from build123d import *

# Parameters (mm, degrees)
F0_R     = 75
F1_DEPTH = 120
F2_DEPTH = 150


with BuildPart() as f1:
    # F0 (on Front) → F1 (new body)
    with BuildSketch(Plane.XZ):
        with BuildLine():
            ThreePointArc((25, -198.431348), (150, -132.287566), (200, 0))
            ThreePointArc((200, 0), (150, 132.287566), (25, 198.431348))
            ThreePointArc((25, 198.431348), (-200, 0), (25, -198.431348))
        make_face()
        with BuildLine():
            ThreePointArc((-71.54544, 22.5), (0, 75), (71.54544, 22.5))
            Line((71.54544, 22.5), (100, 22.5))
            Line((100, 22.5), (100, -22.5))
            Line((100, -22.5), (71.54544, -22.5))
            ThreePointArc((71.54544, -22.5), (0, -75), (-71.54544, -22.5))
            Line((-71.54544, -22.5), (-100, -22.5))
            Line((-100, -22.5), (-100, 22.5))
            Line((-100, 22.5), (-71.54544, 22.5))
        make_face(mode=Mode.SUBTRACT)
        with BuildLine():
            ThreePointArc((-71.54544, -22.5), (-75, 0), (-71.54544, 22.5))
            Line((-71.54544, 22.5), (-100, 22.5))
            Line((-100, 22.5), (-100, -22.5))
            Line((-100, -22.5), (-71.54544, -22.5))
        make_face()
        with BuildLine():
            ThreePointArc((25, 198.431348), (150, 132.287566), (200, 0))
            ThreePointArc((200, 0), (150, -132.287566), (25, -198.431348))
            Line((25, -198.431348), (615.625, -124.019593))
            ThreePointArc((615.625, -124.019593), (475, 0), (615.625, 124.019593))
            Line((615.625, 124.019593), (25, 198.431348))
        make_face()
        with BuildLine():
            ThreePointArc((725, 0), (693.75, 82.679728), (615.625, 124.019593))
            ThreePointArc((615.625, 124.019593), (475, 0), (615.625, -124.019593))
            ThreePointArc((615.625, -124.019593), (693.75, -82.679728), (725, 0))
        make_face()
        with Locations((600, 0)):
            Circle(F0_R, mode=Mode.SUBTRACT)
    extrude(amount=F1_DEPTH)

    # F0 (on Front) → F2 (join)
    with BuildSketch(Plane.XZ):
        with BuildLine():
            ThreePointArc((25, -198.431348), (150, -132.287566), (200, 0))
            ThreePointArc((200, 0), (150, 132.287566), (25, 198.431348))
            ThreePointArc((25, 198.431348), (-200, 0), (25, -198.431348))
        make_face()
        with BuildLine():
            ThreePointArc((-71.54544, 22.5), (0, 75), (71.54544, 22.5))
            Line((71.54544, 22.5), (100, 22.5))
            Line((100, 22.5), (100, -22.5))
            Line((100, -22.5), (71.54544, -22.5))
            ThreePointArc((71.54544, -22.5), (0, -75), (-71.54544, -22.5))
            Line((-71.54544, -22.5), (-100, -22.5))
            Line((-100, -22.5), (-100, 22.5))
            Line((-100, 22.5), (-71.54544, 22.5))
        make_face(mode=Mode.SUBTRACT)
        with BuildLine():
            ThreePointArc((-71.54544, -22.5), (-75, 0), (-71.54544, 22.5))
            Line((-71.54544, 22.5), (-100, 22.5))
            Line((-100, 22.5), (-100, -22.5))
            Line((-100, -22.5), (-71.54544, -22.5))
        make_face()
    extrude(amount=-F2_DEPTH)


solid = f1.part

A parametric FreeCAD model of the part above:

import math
import FreeCAD as App
import Part
import Sketcher
from FreeCAD import Vector
Q = App.Units.Quantity

doc = App.newDocument("Part")
body = doc.addObject("PartDesign::Body", "Body")

sketch1 = body.newObject("Sketcher::SketchObject", "Sketch")
sketch1.AttachmentSupport = (doc.getObject("XZ_Plane"), [""])
sketch1.MapMode = "FlatFace"
sketch1.addGeometry(Part.ArcOfCircle(Part.Circle(Vector(0, 0, 0), Vector(0, 0, 1), 200), math.radians(83), math.radians(277)), False)
sketch1.addGeometry(Part.LineSegment(Vector(25, -198, 0), Vector(616, -124, 0)), False)
sketch1.addGeometry(Part.ArcOfCircle(Part.Circle(Vector(600, 0, 0), Vector(0, 0, 1), 125), math.radians(-83), math.radians(0)), False)
sketch1.addGeometry(Part.ArcOfCircle(Part.Circle(Vector(600, 0, 0), Vector(0, 0, 1), 125), math.radians(0), math.radians(83)), False)
sketch1.addGeometry(Part.LineSegment(Vector(616, 124, 0), Vector(25, 198, 0)), False)
sketch1.addGeometry(Part.ArcOfCircle(Part.Circle(Vector(0, 0, 0), Vector(0, 0, 1), 75), math.radians(-163), math.radians(-17)), False)
sketch1.addGeometry(Part.ArcOfCircle(Part.Circle(Vector(0, 0, 0), Vector(0, 0, 1), 75), math.radians(163), math.radians(197)), False)
sketch1.addGeometry(Part.ArcOfCircle(Part.Circle(Vector(0, 0, 0), Vector(0, 0, 1), 75), math.radians(17), math.radians(163)), False)
sketch1.addGeometry(Part.LineSegment(Vector(72, 22, 0), Vector(100, 22, 0)), False)
sketch1.addGeometry(Part.LineSegment(Vector(100, 22, 0), Vector(100, -22, 0)), False)
sketch1.addGeometry(Part.LineSegment(Vector(100, -22, 0), Vector(72, -22, 0)), False)
sketch1.addGeometry(Part.Circle(Vector(600, 0, 0), Vector(0, 0, 1), 75), False)
sketch1.addConstraint(Sketcher.Constraint("Tangent", 0, 2, 1, 1))
sketch1.addConstraint(Sketcher.Constraint("Tangent", 1, 2, 2, 1))
sketch1.addConstraint(Sketcher.Constraint("Tangent", 2, 2, 3, 1))
sketch1.addConstraint(Sketcher.Constraint("Tangent", 3, 2, 4, 1))
sketch1.addConstraint(Sketcher.Constraint("Tangent", 4, 2, 0, 1))
sketch1.addConstraint(Sketcher.Constraint("Tangent", 5, 1, 6, 2))
sketch1.addConstraint(Sketcher.Constraint("Tangent", 6, 1, 7, 2))
sketch1.addConstraint(Sketcher.Constraint("Coincident", 7, 1, 8, 1))
sketch1.addConstraint(Sketcher.Constraint("Coincident", 8, 2, 9, 1))
sketch1.addConstraint(Sketcher.Constraint("Coincident", 9, 2, 10, 1))
sketch1.addConstraint(Sketcher.Constraint("Coincident", 10, 2, 5, 2))
sketch1.addConstraint(Sketcher.Constraint("Horizontal", 8))
sketch1.addConstraint(Sketcher.Constraint("Vertical", 9))
sketch1.addConstraint(Sketcher.Constraint("Horizontal", 10))
sketch1.addConstraint(Sketcher.Constraint("Coincident", 0, 3, -1, 1))
sketch1.addConstraint(Sketcher.Constraint("Coincident", 5, 3, -1, 1))
sketch1.addConstraint(Sketcher.Constraint("Coincident", 7, 3, -1, 1))
sketch1.addConstraint(Sketcher.Constraint("Coincident", 11, 3, 2, 3))
sketch1.addConstraint(Sketcher.Constraint("Equal", 2, 3))
sketch1.addConstraint(Sketcher.Constraint("Equal", 7, 11))
sketch1.addConstraint(Sketcher.Constraint("PointOnObject", 2, 3, -1))
sketch1.addConstraint(Sketcher.Constraint("PointOnObject", 2, 2, -1))
sketch1.addConstraint(Sketcher.Constraint("Horizontal", 6, 1, 7, 1))
sketch1.addConstraint(Sketcher.Constraint("Horizontal", 5, 1, 9, 2))
sketch1.addConstraint(Sketcher.Constraint("Vertical", 5, 1, 6, 1))
sketch1.addConstraint(Sketcher.Constraint("Diameter", 11, Q("150 mm")))
sketch1.addConstraint(Sketcher.Constraint("Radius", 0, Q("200 mm")))
sketch1.addConstraint(Sketcher.Constraint("Radius", 2, Q("125.000002 mm")))
sketch1.addConstraint(Sketcher.Constraint("DistanceY", 9, 2, 9, 1, Q("45 mm")))
sketch1.addConstraint(Sketcher.Constraint("DistanceX", -1, 1, 2, 3, Q("599.999998 mm")))
sketch1.addConstraint(Sketcher.Constraint("DistanceX", -1, 1, 8, 2, Q("100 mm")))
pad1 = body.newObject("PartDesign::Pad", "Pad")
pad1.Profile = sketch1
pad1.Length = 120

sketch2 = body.newObject("Sketcher::SketchObject", "Sketch001")
sketch2.AttachmentSupport = (doc.getObject("XZ_Plane"), [""])
sketch2.MapMode = "FlatFace"
sketch2.addGeometry(Part.ArcOfCircle(Part.Circle(Vector(0, 0, 0), Vector(0, 0, 1), 200), math.radians(-83), math.radians(0)), False)
sketch2.addGeometry(Part.ArcOfCircle(Part.Circle(Vector(0, 0, 0), Vector(0, 0, 1), 200), math.radians(0), math.radians(83)), False)
sketch2.addGeometry(Part.ArcOfCircle(Part.Circle(Vector(0, 0, 0), Vector(0, 0, 1), 200), math.radians(83), math.radians(277)), False)
sketch2.addGeometry(Part.ArcOfCircle(Part.Circle(Vector(0, 0, 0), Vector(0, 0, 1), 75), math.radians(-163), math.radians(-17)), False)
sketch2.addGeometry(Part.ArcOfCircle(Part.Circle(Vector(0, 0, 0), Vector(0, 0, 1), 75), math.radians(163), math.radians(197)), False)
sketch2.addGeometry(Part.ArcOfCircle(Part.Circle(Vector(0, 0, 0), Vector(0, 0, 1), 75), math.radians(17), math.radians(163)), False)
sketch2.addGeometry(Part.LineSegment(Vector(72, 22, 0), Vector(100, 22, 0)), False)
sketch2.addGeometry(Part.LineSegment(Vector(100, 22, 0), Vector(100, -22, 0)), False)
sketch2.addGeometry(Part.LineSegment(Vector(100, -22, 0), Vector(72, -22, 0)), False)
sketch2.addConstraint(Sketcher.Constraint("Tangent", 0, 2, 1, 1))
sketch2.addConstraint(Sketcher.Constraint("Tangent", 1, 2, 2, 1))
sketch2.addConstraint(Sketcher.Constraint("Tangent", 2, 2, 0, 1))
sketch2.addConstraint(Sketcher.Constraint("Tangent", 3, 1, 4, 2))
sketch2.addConstraint(Sketcher.Constraint("Tangent", 4, 1, 5, 2))
sketch2.addConstraint(Sketcher.Constraint("Coincident", 5, 1, 6, 1))
sketch2.addConstraint(Sketcher.Constraint("Coincident", 6, 2, 7, 1))
sketch2.addConstraint(Sketcher.Constraint("Coincident", 7, 2, 8, 1))
sketch2.addConstraint(Sketcher.Constraint("Coincident", 8, 2, 3, 2))
sketch2.addConstraint(Sketcher.Constraint("Horizontal", 6))
sketch2.addConstraint(Sketcher.Constraint("Vertical", 7))
sketch2.addConstraint(Sketcher.Constraint("Horizontal", 8))
sketch2.addConstraint(Sketcher.Constraint("Coincident", 0, 3, -1, 1))
sketch2.addConstraint(Sketcher.Constraint("Coincident", 3, 3, -1, 1))
sketch2.addConstraint(Sketcher.Constraint("Coincident", 5, 3, -1, 1))
sketch2.addConstraint(Sketcher.Constraint("PointOnObject", 0, 2, -1))
sketch2.addConstraint(Sketcher.Constraint("Horizontal", 4, 1, 5, 1))
sketch2.addConstraint(Sketcher.Constraint("Horizontal", 3, 1, 7, 2))
sketch2.addConstraint(Sketcher.Constraint("Vertical", 1, 2, 2, 2))
sketch2.addConstraint(Sketcher.Constraint("Vertical", 3, 1, 4, 1))
sketch2.addConstraint(Sketcher.Constraint("Radius", 0, Q("199.999998 mm")))
sketch2.addConstraint(Sketcher.Constraint("Radius", 3, Q("75 mm")))
sketch2.addConstraint(Sketcher.Constraint("DistanceY", 7, 2, 7, 1, Q("45 mm")))
sketch2.addConstraint(Sketcher.Constraint("DistanceX", -1, 1, 1, 2, Q("25 mm")))
sketch2.addConstraint(Sketcher.Constraint("DistanceX", -1, 1, 6, 2, Q("100 mm")))
pad2 = body.newObject("PartDesign::Pad", "Pad001")
pad2.Profile = sketch2
pad2.Length = 150
pad2.Reversed = True

doc.recompute()
